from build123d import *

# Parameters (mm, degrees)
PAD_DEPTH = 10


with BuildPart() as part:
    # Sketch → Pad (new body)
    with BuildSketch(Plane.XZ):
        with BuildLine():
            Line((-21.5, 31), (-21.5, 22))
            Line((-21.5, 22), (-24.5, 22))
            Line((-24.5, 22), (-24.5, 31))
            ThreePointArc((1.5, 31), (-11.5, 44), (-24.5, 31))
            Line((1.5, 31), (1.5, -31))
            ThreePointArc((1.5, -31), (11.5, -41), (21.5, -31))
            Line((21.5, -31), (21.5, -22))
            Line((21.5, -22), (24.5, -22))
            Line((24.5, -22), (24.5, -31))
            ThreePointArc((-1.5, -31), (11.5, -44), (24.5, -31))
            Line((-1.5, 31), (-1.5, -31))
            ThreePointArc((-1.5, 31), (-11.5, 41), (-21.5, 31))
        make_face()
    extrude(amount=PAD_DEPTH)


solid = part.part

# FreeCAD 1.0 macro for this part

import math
import FreeCAD as App
import Part
import Sketcher
from FreeCAD import Vector

doc = App.newDocument("Part")
body = doc.addObject("PartDesign::Body", "Body")

sketch1 = body.newObject("Sketcher::SketchObject", "Sketch")
sketch1.AttachmentSupport = (doc.getObject("XZ_Plane"), [""])
sketch1.MapMode = "FlatFace"
sketch1.addGeometry([
    Part.LineSegment(Vector(-21.5, 22, 0), Vector(-21.5, 31, 0)),
    Part.ArcOfCircle(Part.Circle(Vector(-11.5, 31, 0), Vector(0, 0, 1), 10), math.radians(0), math.radians(180)),
    Part.LineSegment(Vector(-1.5, 31, 0), Vector(-1.5, -31, 0)),
    Part.ArcOfCircle(Part.Circle(Vector(11.5, -31, 0), Vector(0, 0, 1), 13), math.radians(180), math.radians(360)),
    Part.LineSegment(Vector(24.5, -31, 0), Vector(24.5, -22, 0)),
    Part.LineSegment(Vector(24.5, -22, 0), Vector(21.5, -22, 0)),
    Part.LineSegment(Vector(21.5, -22, 0), Vector(21.5, -31, 0)),
    Part.ArcOfCircle(Part.Circle(Vector(11.5, -31, 0), Vector(0, 0, 1), 10), math.radians(180), math.radians(360)),
    Part.LineSegment(Vector(1.5, -31, 0), Vector(1.5, 31, 0)),
    Part.ArcOfCircle(Part.Circle(Vector(-11.5, 31, 0), Vector(0, 0, 1), 13), math.radians(0), math.radians(180)),
    Part.LineSegment(Vector(-24.5, 31, 0), Vector(-24.5, 22, 0)),
    Part.LineSegment(Vector(-24.5, 22, 0), Vector(-21.5, 22, 0)),
], False)
sketch1.addConstraint([
    Sketcher.Constraint("Tangent", 0, 2, 1, 2),
    Sketcher.Constraint("Tangent", 1, 1, 2, 1),
    Sketcher.Constraint("Tangent", 2, 2, 3, 1),
    Sketcher.Constraint("Tangent", 3, 2, 4, 1),
    Sketcher.Constraint("Coincident", 4, 2, 5, 1),
    Sketcher.Constraint("Coincident", 5, 2, 6, 1),
    Sketcher.Constraint("Tangent", 6, 2, 7, 2),
    Sketcher.Constraint("Tangent", 7, 1, 8, 1),
    Sketcher.Constraint("Tangent", 8, 2, 9, 1),
    Sketcher.Constraint("Tangent", 9, 2, 10, 1),
    Sketcher.Constraint("Coincident", 10, 2, 11, 1),
    Sketcher.Constraint("Coincident", 11, 2, 0, 1),
    Sketcher.Constraint("Vertical", 0),
    Sketcher.Constraint("Vertical", 2),
    Sketcher.Constraint("Vertical", 4),
    Sketcher.Constraint("Horizontal", 5),
    Sketcher.Constraint("Vertical", 6),
    Sketcher.Constraint("Vertical", 8),
    Sketcher.Constraint("Vertical", 10),
    Sketcher.Constraint("Horizontal", 11),
    Sketcher.Constraint("Coincident", 7, 3, 3, 3),
    Sketcher.Constraint("Coincident", 9, 3, 1, 3),
    Sketcher.Constraint("Equal", 1, 7),
    Sketcher.Constraint("Symmetric", 1, 3, 3, 3, -1, 1),
    Sketcher.Constraint("Equal", 0, 4),
    Sketcher.Constraint("Radius", 1, 10.0),
    Sketcher.Constraint("Radius", 3, 13.0),
    Sketcher.Constraint("DistanceY", 0, 1, 0, 2, 9.0),
    Sketcher.Constraint("DistanceY", 2, 2, 2, 1, 62.0),
])
pad1 = body.newObject("PartDesign::Pad", "Pad")
pad1.Profile = sketch1
pad1.Length = 10

doc.recompute()
